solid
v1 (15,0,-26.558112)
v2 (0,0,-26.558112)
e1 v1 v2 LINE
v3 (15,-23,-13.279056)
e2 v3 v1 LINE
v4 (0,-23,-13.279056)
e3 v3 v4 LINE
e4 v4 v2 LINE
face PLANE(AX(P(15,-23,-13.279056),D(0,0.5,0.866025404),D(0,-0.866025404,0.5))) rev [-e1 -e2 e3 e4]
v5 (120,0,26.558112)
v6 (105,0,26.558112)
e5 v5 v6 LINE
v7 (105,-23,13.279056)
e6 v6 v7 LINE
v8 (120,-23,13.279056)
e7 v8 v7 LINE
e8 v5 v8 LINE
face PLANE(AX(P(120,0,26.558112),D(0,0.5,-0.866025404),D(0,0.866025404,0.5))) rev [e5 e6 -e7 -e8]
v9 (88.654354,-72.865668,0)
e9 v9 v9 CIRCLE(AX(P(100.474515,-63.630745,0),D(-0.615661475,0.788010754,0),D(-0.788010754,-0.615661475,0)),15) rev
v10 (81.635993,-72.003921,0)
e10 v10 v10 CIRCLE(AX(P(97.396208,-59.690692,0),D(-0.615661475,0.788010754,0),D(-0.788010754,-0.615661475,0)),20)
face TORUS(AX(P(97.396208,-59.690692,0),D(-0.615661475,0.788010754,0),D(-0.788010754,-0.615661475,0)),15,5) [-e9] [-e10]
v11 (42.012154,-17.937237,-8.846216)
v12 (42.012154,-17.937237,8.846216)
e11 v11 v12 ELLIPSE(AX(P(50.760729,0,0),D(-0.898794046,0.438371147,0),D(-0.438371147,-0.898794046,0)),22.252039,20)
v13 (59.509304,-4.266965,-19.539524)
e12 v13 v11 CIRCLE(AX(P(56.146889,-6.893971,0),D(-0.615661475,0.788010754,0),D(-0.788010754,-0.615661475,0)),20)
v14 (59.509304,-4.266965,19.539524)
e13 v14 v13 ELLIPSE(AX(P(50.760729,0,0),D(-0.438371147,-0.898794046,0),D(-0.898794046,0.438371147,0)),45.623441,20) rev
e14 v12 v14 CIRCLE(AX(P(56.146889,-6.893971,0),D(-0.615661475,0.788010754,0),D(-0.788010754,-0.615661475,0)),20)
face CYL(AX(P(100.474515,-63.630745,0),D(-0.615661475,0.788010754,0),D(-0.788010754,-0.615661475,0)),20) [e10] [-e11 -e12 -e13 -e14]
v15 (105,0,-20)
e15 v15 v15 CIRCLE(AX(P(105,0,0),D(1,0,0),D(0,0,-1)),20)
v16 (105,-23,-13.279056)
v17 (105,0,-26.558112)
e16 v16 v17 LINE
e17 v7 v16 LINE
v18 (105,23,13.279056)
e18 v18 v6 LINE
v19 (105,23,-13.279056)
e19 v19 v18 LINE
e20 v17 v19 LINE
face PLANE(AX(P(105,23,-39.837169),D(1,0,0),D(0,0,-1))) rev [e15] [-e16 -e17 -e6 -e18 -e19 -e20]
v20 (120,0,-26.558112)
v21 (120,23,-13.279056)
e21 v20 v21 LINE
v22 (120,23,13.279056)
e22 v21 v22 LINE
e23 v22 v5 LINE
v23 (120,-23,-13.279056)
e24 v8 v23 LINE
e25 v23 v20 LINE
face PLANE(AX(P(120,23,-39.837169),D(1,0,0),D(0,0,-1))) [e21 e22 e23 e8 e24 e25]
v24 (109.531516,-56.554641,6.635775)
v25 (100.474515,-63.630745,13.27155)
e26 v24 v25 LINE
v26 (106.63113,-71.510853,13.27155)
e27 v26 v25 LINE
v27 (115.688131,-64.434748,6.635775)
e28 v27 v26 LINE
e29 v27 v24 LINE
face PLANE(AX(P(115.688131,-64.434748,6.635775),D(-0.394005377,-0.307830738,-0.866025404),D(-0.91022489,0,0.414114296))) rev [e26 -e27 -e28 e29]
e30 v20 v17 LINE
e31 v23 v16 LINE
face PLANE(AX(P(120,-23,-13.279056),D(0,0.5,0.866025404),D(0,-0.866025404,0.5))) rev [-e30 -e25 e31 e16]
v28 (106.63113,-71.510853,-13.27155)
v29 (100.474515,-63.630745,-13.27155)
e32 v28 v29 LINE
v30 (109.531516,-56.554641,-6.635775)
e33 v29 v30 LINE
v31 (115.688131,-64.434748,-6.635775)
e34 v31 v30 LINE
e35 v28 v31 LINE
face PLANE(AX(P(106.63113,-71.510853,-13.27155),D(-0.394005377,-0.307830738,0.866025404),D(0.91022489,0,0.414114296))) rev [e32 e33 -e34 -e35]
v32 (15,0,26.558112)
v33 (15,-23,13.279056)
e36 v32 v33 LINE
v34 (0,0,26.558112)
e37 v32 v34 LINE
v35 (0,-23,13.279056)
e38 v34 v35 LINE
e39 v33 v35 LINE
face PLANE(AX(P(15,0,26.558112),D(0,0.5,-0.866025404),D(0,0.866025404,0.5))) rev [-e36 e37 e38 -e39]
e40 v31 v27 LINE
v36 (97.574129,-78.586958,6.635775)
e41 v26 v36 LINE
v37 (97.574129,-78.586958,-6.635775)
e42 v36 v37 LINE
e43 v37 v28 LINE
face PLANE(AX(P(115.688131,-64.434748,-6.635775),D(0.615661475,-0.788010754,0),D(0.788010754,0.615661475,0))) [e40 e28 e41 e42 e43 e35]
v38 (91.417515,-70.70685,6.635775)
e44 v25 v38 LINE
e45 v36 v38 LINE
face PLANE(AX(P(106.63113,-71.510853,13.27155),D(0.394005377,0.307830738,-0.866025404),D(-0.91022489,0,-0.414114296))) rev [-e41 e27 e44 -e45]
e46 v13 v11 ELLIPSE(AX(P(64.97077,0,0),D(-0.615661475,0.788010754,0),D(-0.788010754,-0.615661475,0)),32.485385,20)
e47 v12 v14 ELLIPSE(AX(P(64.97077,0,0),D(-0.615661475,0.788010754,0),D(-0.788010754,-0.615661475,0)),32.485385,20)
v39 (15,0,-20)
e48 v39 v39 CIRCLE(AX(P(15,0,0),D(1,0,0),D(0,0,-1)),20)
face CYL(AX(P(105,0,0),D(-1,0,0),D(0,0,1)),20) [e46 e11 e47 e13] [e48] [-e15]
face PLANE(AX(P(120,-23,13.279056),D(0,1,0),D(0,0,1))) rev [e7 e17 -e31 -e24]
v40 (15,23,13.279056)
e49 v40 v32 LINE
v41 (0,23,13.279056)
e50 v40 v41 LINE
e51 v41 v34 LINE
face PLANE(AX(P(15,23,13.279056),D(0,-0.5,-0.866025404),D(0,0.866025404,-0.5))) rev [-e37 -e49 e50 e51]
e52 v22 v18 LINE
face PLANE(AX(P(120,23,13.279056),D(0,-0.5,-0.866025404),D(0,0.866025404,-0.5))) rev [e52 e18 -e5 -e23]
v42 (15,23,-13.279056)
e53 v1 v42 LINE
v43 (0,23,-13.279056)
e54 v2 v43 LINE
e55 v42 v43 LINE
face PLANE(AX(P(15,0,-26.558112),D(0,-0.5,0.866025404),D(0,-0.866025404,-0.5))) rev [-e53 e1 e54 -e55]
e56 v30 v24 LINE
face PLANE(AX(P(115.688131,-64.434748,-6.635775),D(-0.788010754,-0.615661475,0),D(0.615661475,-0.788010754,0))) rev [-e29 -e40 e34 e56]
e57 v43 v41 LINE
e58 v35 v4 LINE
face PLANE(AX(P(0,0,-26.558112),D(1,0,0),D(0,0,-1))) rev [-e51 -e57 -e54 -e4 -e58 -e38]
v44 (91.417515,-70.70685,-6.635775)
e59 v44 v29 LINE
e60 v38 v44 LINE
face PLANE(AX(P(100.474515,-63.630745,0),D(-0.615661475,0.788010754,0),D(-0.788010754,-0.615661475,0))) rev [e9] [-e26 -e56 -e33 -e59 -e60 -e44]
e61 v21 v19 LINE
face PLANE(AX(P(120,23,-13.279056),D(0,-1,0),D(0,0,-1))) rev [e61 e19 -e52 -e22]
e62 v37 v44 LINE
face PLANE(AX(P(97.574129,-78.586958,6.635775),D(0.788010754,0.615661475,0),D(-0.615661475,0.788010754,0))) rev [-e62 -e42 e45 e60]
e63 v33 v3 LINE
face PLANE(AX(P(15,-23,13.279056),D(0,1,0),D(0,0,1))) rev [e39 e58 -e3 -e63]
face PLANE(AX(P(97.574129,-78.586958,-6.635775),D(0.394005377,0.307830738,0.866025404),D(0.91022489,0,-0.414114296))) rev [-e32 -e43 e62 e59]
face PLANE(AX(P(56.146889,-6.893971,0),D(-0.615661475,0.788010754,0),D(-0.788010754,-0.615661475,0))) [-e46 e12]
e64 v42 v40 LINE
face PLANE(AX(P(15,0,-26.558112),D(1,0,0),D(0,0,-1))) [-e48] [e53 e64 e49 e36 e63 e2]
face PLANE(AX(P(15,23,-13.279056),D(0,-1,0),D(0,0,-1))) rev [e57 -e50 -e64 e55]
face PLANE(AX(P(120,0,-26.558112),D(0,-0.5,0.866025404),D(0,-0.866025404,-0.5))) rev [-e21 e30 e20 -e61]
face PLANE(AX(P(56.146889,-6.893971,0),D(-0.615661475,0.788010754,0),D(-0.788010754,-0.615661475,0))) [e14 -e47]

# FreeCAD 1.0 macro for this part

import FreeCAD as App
import Part
import Sketcher
from FreeCAD import Vector
Q = App.Units.Quantity


def edges_at(feature, points):
    """Names of the edges that pass closest to the given points."""
    edges = feature.Shape.Edges
    near = lambda p: min(range(len(edges)), key=lambda i: edges[i].distToShape(Part.Vertex(*p))[0])
    return sorted({f"Edge{near(p) + 1}" for p in points})

doc = App.newDocument("Part")
body = doc.addObject("PartDesign::Body", "Body")

# Sketch on YZ plane
sketch1 = doc.addObject("Sketcher::SketchObject", "Sketch")
body.addObject(sketch1)
sketch1.AttachmentSupport = (doc.YZ_Plane, [""])
sketch1.MapMode = "FlatFace"
sketch1.addGeometry(Part.LineSegment(Vector(0, -27, 0), Vector(23, -13, 0)), False)
sketch1.addGeometry(Part.LineSegment(Vector(23, -13, 0), Vector(23, 13, 0)), False)
sketch1.addGeometry(Part.LineSegment(Vector(23, 13, 0), Vector(0, 27, 0)), False)
sketch1.addGeometry(Part.LineSegment(Vector(0, 27, 0), Vector(-23, 13, 0)), False)
sketch1.addGeometry(Part.LineSegment(Vector(-23, 13, 0), Vector(-23, -13, 0)), False)
sketch1.addGeometry(Part.LineSegment(Vector(-23, -13, 0), Vector(0, -27, 0)), False)
sketch1.addConstraint(Sketcher.Constraint("Coincident", 0, 2, 1, 1))
sketch1.addConstraint(Sketcher.Constraint("Coincident", 1, 2, 2, 1))
sketch1.addConstraint(Sketcher.Constraint("Coincident", 2, 2, 3, 1))
sketch1.addConstraint(Sketcher.Constraint("Coincident", 3, 2, 4, 1))
sketch1.addConstraint(Sketcher.Constraint("Coincident", 4, 2, 5, 1))
sketch1.addConstraint(Sketcher.Constraint("Coincident", 5, 2, 0, 1))
sketch1.addConstraint(Sketcher.Constraint("Vertical", 1))
sketch1.addConstraint(Sketcher.Constraint("Vertical", 4))
sketch1.addConstraint(Sketcher.Constraint("Symmetric", 0, 2, 3, 2, -1, 1))
sketch1.addConstraint(Sketcher.Constraint("Symmetric", 2, 2, 5, 2, -1, 1))
sketch1.addConstraint(Sketcher.Constraint("PointOnObject", 2, 2, -2))
sketch1.addConstraint(Sketcher.Constraint("Parallel", 2, 5))
sketch1.addConstraint(Sketcher.Constraint("Horizontal", 1, 2, 3, 2))
sketch1.addConstraint(Sketcher.Constraint("Angle", 0, Q("30 deg")))
sketch1.addConstraint(Sketcher.Constraint("DistanceX", -1, 1, 0, 2, Q("23 mm")))
sketch1.addConstraint(Sketcher.Constraint("DistanceY", 1, 1, 1, 2, Q("26.558112 mm")))
pad1 = doc.addObject("PartDesign::Pad", "Pad")
body.addObject(pad1)
pad1.Profile = sketch1
pad1.Length = 15

# Sketch on YZ plane
sketch2 = doc.addObject("Sketcher::SketchObject", "Sketch001")
body.addObject(sketch2)
sketch2.AttachmentSupport = (doc.YZ_Plane, [""])
sketch2.MapMode = "FlatFace"
sketch2.AttachmentOffset = App.Placement(Vector(0, 0, 15), App.Rotation())
sketch2.addGeometry(Part.Circle(Vector(0, 0, 0), Vector(0, 0, 1), 20), False)
sketch2.addConstraint(Sketcher.Constraint("Coincident", 0, 3, -1, 1))
sketch2.addConstraint(Sketcher.Constraint("Diameter", 0, Q("40 mm")))
pad2 = doc.addObject("PartDesign::Pad", "Pad001")
body.addObject(pad2)
pad2.Profile = sketch2
pad2.Length = 90

# Sketch on YZ plane
sketch3 = doc.addObject("Sketcher::SketchObject", "Sketch002")
body.addObject(sketch3)
sketch3.AttachmentSupport = (doc.YZ_Plane, [""])
sketch3.MapMode = "FlatFace"
sketch3.AttachmentOffset = App.Placement(Vector(0, 0, 105), App.Rotation())
sketch3.addGeometry(Part.LineSegment(Vector(0, -27, 0), Vector(23, -13, 0)), False)
sketch3.addGeometry(Part.LineSegment(Vector(23, -13, 0), Vector(23, 13, 0)), False)
sketch3.addGeometry(Part.LineSegment(Vector(23, 13, 0), Vector(0, 27, 0)), False)
sketch3.addGeometry(Part.LineSegment(Vector(0, 27, 0), Vector(-23, 13, 0)), False)
sketch3.addGeometry(Part.LineSegment(Vector(-23, 13, 0), Vector(-23, -13, 0)), False)
sketch3.addGeometry(Part.LineSegment(Vector(-23, -13, 0), Vector(0, -27, 0)), False)
sketch3.addConstraint(Sketcher.Constraint("Coincident", 0, 2, 1, 1))
sketch3.addConstraint(Sketcher.Constraint("Coincident", 1, 2, 2, 1))
sketch3.addConstraint(Sketcher.Constraint("Coincident", 2, 2, 3, 1))
sketch3.addConstraint(Sketcher.Constraint("Coincident", 3, 2, 4, 1))
sketch3.addConstraint(Sketcher.Constraint("Coincident", 4, 2, 5, 1))
sketch3.addConstraint(Sketcher.Constraint("Coincident", 5, 2, 0, 1))
sketch3.addConstraint(Sketcher.Constraint("Vertical", 1))
sketch3.addConstraint(Sketcher.Constraint("Vertical", 4))
sketch3.addConstraint(Sketcher.Constraint("Symmetric", 0, 2, 3, 2, -1, 1))
sketch3.addConstraint(Sketcher.Constraint("Symmetric", 2, 2, 5, 2, -1, 1))
sketch3.addConstraint(Sketcher.Constraint("PointOnObject", 2, 2, -2))
sketch3.addConstraint(Sketcher.Constraint("Parallel", 2, 5))
sketch3.addConstraint(Sketcher.Constraint("Horizontal", 1, 2, 3, 2))
sketch3.addConstraint(Sketcher.Constraint("Angle", 0, Q("30 deg")))
sketch3.addConstraint(Sketcher.Constraint("DistanceX", -1, 1, 0, 2, Q("23 mm")))
sketch3.addConstraint(Sketcher.Constraint("DistanceY", 1, 1, 1, 2, Q("26.558112 mm")))
pad3 = doc.addObject("PartDesign::Pad", "Pad002")
body.addObject(pad3)
pad3.Profile = sketch3
pad3.Length = 15

# Sketch on an angled plane
sketch4 = doc.addObject("Sketcher::SketchObject", "Sketch003")
body.addObject(sketch4)
sketch4.Placement = App.Placement(Vector(24.626459, -31.52043, 0), App.Rotation(Vector(0, 0, 1), Vector(0.788010754, 0.615661475, 0), Vector(-0.615661475, 0.788010754, 0), "ZXY"))
sketch4.addGeometry(Part.Circle(Vector(0, 40, 0), Vector(0, 0, 1), 20), False)
sketch4.addConstraint(Sketcher.Constraint("PointOnObject", 0, 3, -2))
sketch4.addConstraint(Sketcher.Constraint("Diameter", 0, Q("40 mm")))
sketch4.addConstraint(Sketcher.Constraint("DistanceY", -1, 1, 0, 3, Q("40 mm")))
pad4 = doc.addObject("PartDesign::Pad", "Pad003")
body.addObject(pad4)
pad4.Profile = sketch4
pad4.Length = 72
pad4.Reversed = True

# Sketch on an angled plane
sketch5 = doc.addObject("Sketcher::SketchObject", "Sketch004")
body.addObject(sketch5)
sketch5.Placement = App.Placement(Vector(68.954085, -88.257204, 0), App.Rotation(Vector(0, 0, -1), Vector(0.788010754, 0.615661475, 0), Vector(0.615661475, -0.788010754, 0), "ZXY"))
sketch5.addGeometry(Part.LineSegment(Vector(7, 51, 0), Vector(-7, 51, 0)), False)
sketch5.addGeometry(Part.LineSegment(Vector(-7, 51, 0), Vector(-13, 40, 0)), False)
sketch5.addGeometry(Part.LineSegment(Vector(-13, 40, 0), Vector(-7, 29, 0)), False)
sketch5.addGeometry(Part.LineSegment(Vector(-7, 29, 0), Vector(7, 29, 0)), False)
sketch5.addGeometry(Part.LineSegment(Vector(7, 29, 0), Vector(13, 40, 0)), False)
sketch5.addGeometry(Part.LineSegment(Vector(13, 40, 0), Vector(7, 51, 0)), False)
sketch5.addConstraint(Sketcher.Constraint("Coincident", 0, 2, 1, 1))
sketch5.addConstraint(Sketcher.Constraint("Coincident", 1, 2, 2, 1))
sketch5.addConstraint(Sketcher.Constraint("Coincident", 2, 2, 3, 1))
sketch5.addConstraint(Sketcher.Constraint("Coincident", 3, 2, 4, 1))
sketch5.addConstraint(Sketcher.Constraint("Coincident", 4, 2, 5, 1))
sketch5.addConstraint(Sketcher.Constraint("Coincident", 5, 2, 0, 1))
sketch5.addConstraint(Sketcher.Constraint("Horizontal", 0))
sketch5.addConstraint(Sketcher.Constraint("Horizontal", 3))
sketch5.addConstraint(Sketcher.Constraint("Symmetric", 1, 2, 4, 2, -2))
sketch5.addConstraint(Sketcher.Constraint("Parallel", 1, 4))
sketch5.addConstraint(Sketcher.Constraint("Parallel", 2, 5))
sketch5.addConstraint(Sketcher.Constraint("Vertical", 0, 2, 2, 2))
sketch5.addConstraint(Sketcher.Constraint("Vertical", 3, 2, 5, 2))
sketch5.addConstraint(Sketcher.Constraint("Angle", 1, Q("-120 deg")))
sketch5.addConstraint(Sketcher.Constraint("DistanceY", -1, 1, 1, 2, Q("40 mm")))
sketch5.addConstraint(Sketcher.Constraint("DistanceY", 2, 2, 0, 2, Q("22.986998 mm")))
sketch5.addConstraint(Sketcher.Constraint("DistanceX", 0, 2, 0, 1, Q("13.27155 mm")))
pad5 = doc.addObject("PartDesign::Pad", "Pad004")
body.addObject(pad5)
pad5.Profile = sketch5
pad5.Length = 10
doc.recompute()

fillet = doc.addObject("PartDesign::Fillet", "Fillet")
body.addObject(fillet)
fillet.Base = (pad5, edges_at(pad5, [(116.235, -51.318, 0)]))
fillet.Radius = 5

doc.recompute()
